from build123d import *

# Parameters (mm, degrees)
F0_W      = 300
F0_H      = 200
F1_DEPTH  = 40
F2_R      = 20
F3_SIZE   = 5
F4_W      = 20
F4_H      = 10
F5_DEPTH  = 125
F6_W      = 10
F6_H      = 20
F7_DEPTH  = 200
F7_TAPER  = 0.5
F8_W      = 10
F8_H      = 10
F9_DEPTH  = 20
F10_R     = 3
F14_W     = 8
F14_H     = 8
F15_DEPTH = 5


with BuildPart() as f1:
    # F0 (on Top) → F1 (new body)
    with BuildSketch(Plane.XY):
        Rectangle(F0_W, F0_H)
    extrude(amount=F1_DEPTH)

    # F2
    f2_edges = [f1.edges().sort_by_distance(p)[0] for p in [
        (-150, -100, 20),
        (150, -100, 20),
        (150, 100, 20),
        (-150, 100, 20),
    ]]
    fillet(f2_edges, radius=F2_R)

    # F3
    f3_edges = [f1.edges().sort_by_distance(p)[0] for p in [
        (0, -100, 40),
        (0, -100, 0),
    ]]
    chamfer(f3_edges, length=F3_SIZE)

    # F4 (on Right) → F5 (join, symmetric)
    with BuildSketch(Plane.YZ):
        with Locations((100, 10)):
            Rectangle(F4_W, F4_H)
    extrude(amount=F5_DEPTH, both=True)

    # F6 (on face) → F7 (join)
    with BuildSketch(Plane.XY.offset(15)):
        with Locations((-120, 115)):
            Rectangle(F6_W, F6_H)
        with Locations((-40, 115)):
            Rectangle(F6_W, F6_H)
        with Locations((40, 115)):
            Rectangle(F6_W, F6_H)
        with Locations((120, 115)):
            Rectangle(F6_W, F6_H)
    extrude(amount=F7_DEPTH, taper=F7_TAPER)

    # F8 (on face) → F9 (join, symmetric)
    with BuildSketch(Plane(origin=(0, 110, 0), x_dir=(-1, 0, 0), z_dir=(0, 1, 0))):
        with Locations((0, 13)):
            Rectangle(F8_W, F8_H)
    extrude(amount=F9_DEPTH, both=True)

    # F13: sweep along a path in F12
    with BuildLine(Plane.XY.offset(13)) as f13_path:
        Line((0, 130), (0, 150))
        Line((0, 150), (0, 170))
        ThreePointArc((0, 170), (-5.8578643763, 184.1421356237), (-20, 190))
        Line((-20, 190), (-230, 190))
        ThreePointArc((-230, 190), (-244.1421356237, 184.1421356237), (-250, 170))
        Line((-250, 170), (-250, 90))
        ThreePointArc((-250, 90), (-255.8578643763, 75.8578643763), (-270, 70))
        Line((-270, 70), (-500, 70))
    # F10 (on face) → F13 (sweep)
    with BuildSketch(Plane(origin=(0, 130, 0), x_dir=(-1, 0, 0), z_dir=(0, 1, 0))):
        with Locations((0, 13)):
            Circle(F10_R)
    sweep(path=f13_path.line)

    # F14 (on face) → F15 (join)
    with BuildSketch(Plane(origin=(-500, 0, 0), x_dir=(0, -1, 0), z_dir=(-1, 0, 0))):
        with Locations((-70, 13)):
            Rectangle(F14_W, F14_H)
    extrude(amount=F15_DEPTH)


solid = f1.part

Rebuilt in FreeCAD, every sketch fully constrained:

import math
import FreeCAD as App
import Part
import Sketcher

V = App.Vector
Q = App.Units.Quantity


def edges_at(feature, points):
    """Names of the edges that pass closest to the given points."""
    edges = feature.Shape.Edges
    near = lambda p: min(range(len(edges)), key=lambda i: edges[i].distToShape(Part.Vertex(*p))[0])
    return sorted({f"Edge{near(p) + 1}" for p in points})

doc = App.newDocument("Part")
body = doc.addObject("PartDesign::Body", "Body")

sketch1 = doc.addObject("Sketcher::SketchObject", "Sketch")
body.addObject(sketch1)
sketch1.AttachmentSupport = (doc.XY_Plane, [""])
sketch1.MapMode = "FlatFace"
sketch1.addGeometry(Part.LineSegment(V(-150, 100, 0), V(-150, -100, 0)), False)
sketch1.addGeometry(Part.LineSegment(V(-150, -100, 0), V(150, -100, 0)), False)
sketch1.addGeometry(Part.LineSegment(V(150, -100, 0), V(150, 100, 0)), False)
sketch1.addGeometry(Part.LineSegment(V(150, 100, 0), V(-150, 100, 0)), False)
sketch1.addConstraint(Sketcher.Constraint("Coincident", 0, 2, 1, 1))
sketch1.addConstraint(Sketcher.Constraint("Coincident", 1, 2, 2, 1))
sketch1.addConstraint(Sketcher.Constraint("Coincident", 2, 2, 3, 1))
sketch1.addConstraint(Sketcher.Constraint("Coincident", 3, 2, 0, 1))
sketch1.addConstraint(Sketcher.Constraint("Vertical", 0))
sketch1.addConstraint(Sketcher.Constraint("Horizontal", 1))
sketch1.addConstraint(Sketcher.Constraint("Vertical", 2))
sketch1.addConstraint(Sketcher.Constraint("Horizontal", 3))
sketch1.addConstraint(Sketcher.Constraint("Symmetric", 0, 2, 2, 2, -1, 1))
sketch1.addConstraint(Sketcher.Constraint("DistanceX", 1, 1, 1, 2, Q("300 mm")))
sketch1.addConstraint(Sketcher.Constraint("DistanceY", 0, 2, 0, 1, Q("200 mm")))
pad1 = doc.addObject("PartDesign::Pad", "Pad")
body.addObject(pad1)
pad1.Profile = sketch1
pad1.Length = 40
doc.recompute()

fillet = doc.addObject("PartDesign::Fillet", "Fillet")
body.addObject(fillet)
fillet.Base = (pad1, edges_at(pad1, [
    (-150, -100, 20),
    (150, -100, 20),
    (150, 100, 20),
    (-150, 100, 20),
]))
fillet.Radius = 20
doc.recompute()

chamfer = doc.addObject("PartDesign::Chamfer", "Chamfer")
body.addObject(chamfer)
chamfer.Base = (fillet, edges_at(fillet, [(0, -100, 40), (0, -100, 0)]))
chamfer.Size = 5

sketch2 = doc.addObject("Sketcher::SketchObject", "Sketch001")
body.addObject(sketch2)
sketch2.AttachmentSupport = (doc.YZ_Plane, [""])
sketch2.MapMode = "FlatFace"
sketch2.addGeometry(Part.LineSegment(V(90, 15, 0), V(90, 5, 0)), False)
sketch2.addGeometry(Part.LineSegment(V(90, 5, 0), V(110, 5, 0)), False)
sketch2.addGeometry(Part.LineSegment(V(110, 5, 0), V(110, 15, 0)), False)
sketch2.addGeometry(Part.LineSegment(V(110, 15, 0), V(90, 15, 0)), False)
sketch2.addConstraint(Sketcher.Constraint("Coincident", 0, 2, 1, 1))
sketch2.addConstraint(Sketcher.Constraint("Coincident", 1, 2, 2, 1))
sketch2.addConstraint(Sketcher.Constraint("Coincident", 2, 2, 3, 1))
sketch2.addConstraint(Sketcher.Constraint("Coincident", 3, 2, 0, 1))
sketch2.addConstraint(Sketcher.Constraint("Vertical", 0))
sketch2.addConstraint(Sketcher.Constraint("Horizontal", 1))
sketch2.addConstraint(Sketcher.Constraint("Vertical", 2))
sketch2.addConstraint(Sketcher.Constraint("Horizontal", 3))
sketch2.addConstraint(Sketcher.Constraint("DistanceX", 1, 1, 1, 2, Q("20 mm")))
sketch2.addConstraint(Sketcher.Constraint("DistanceY", 0, 2, 0, 1, Q("10 mm")))
sketch2.addConstraint(Sketcher.Constraint("DistanceX", -1, 1, 0, 2, Q("90 mm")))
sketch2.addConstraint(Sketcher.Constraint("DistanceY", -1, 1, 0, 2, Q("5 mm")))
pad2 = doc.addObject("PartDesign::Pad", "Pad001")
body.addObject(pad2)
pad2.Profile = sketch2
pad2.Length = 250
pad2.Midplane = True

sketch3 = doc.addObject("Sketcher::SketchObject", "Sketch002")
body.addObject(sketch3)
sketch3.AttachmentSupport = (doc.XY_Plane, [""])
sketch3.MapMode = "FlatFace"
sketch3.AttachmentOffset = App.Placement(V(0, 0, 15), App.Rotation())
sketch3.addGeometry(Part.LineSegment(V(-125, 125, 0), V(-125, 105, 0)), False)
sketch3.addGeometry(Part.LineSegment(V(-125, 105, 0), V(-115, 105, 0)), False)
sketch3.addGeometry(Part.LineSegment(V(-115, 105, 0), V(-115, 125, 0)), False)
sketch3.addGeometry(Part.LineSegment(V(-115, 125, 0), V(-125, 125, 0)), False)
sketch3.addGeometry(Part.LineSegment(V(-45, 125, 0), V(-45, 105, 0)), False)
sketch3.addGeometry(Part.LineSegment(V(-45, 105, 0), V(-35, 105, 0)), False)
sketch3.addGeometry(Part.LineSegment(V(-35, 105, 0), V(-35, 125, 0)), False)
sketch3.addGeometry(Part.LineSegment(V(-35, 125, 0), V(-45, 125, 0)), False)
sketch3.addGeometry(Part.LineSegment(V(35, 125, 0), V(35, 105, 0)), False)
sketch3.addGeometry(Part.LineSegment(V(35, 105, 0), V(45, 105, 0)), False)
sketch3.addGeometry(Part.LineSegment(V(45, 105, 0), V(45, 125, 0)), False)
sketch3.addGeometry(Part.LineSegment(V(45, 125, 0), V(35, 125, 0)), False)
sketch3.addGeometry(Part.LineSegment(V(115, 125, 0), V(115, 105, 0)), False)
sketch3.addGeometry(Part.LineSegment(V(115, 105, 0), V(125, 105, 0)), False)
sketch3.addGeometry(Part.LineSegment(V(125, 105, 0), V(125, 125, 0)), False)
sketch3.addGeometry(Part.LineSegment(V(125, 125, 0), V(115, 125, 0)), False)
sketch3.addConstraint(Sketcher.Constraint("Coincident", 0, 2, 1, 1))
sketch3.addConstraint(Sketcher.Constraint("Coincident", 1, 2, 2, 1))
sketch3.addConstraint(Sketcher.Constraint("Coincident", 2, 2, 3, 1))
sketch3.addConstraint(Sketcher.Constraint("Coincident", 3, 2, 0, 1))
sketch3.addConstraint(Sketcher.Constraint("Coincident", 4, 2, 5, 1))
sketch3.addConstraint(Sketcher.Constraint("Coincident", 5, 2, 6, 1))
sketch3.addConstraint(Sketcher.Constraint("Coincident", 6, 2, 7, 1))
sketch3.addConstraint(Sketcher.Constraint("Coincident", 7, 2, 4, 1))
sketch3.addConstraint(Sketcher.Constraint("Coincident", 8, 2, 9, 1))
sketch3.addConstraint(Sketcher.Constraint("Coincident", 9, 2, 10, 1))
sketch3.addConstraint(Sketcher.Constraint("Coincident", 10, 2, 11, 1))
sketch3.addConstraint(Sketcher.Constraint("Coincident", 11, 2, 8, 1))
sketch3.addConstraint(Sketcher.Constraint("Coincident", 12, 2, 13, 1))
sketch3.addConstraint(Sketcher.Constraint("Coincident", 13, 2, 14, 1))
sketch3.addConstraint(Sketcher.Constraint("Coincident", 14, 2, 15, 1))
sketch3.addConstraint(Sketcher.Constraint("Coincident", 15, 2, 12, 1))
sketch3.addConstraint(Sketcher.Constraint("Vertical", 0))
sketch3.addConstraint(Sketcher.Constraint("Horizontal", 1))
sketch3.addConstraint(Sketcher.Constraint("Vertical", 2))
sketch3.addConstraint(Sketcher.Constraint("Horizontal", 3))
sketch3.addConstraint(Sketcher.Constraint("Vertical", 4))
sketch3.addConstraint(Sketcher.Constraint("Horizontal", 5))
sketch3.addConstraint(Sketcher.Constraint("Vertical", 6))
sketch3.addConstraint(Sketcher.Constraint("Horizontal", 7))
sketch3.addConstraint(Sketcher.Constraint("Vertical", 8))
sketch3.addConstraint(Sketcher.Constraint("Horizontal", 9))
sketch3.addConstraint(Sketcher.Constraint("Vertical", 10))
sketch3.addConstraint(Sketcher.Constraint("Horizontal", 11))
sketch3.addConstraint(Sketcher.Constraint("Vertical", 12))
sketch3.addConstraint(Sketcher.Constraint("Horizontal", 13))
sketch3.addConstraint(Sketcher.Constraint("Vertical", 14))
sketch3.addConstraint(Sketcher.Constraint("Horizontal", 15))
sketch3.addConstraint(Sketcher.Constraint("Symmetric", 5, 2, 8, 2, -2))
sketch3.addConstraint(Sketcher.Constraint("Symmetric", 7, 2, 10, 2, -2))
sketch3.addConstraint(Sketcher.Constraint("Symmetric", 1, 2, 12, 2, -2))
sketch3.addConstraint(Sketcher.Constraint("Symmetric", 3, 2, 14, 2, -2))
sketch3.addConstraint(Sketcher.Constraint("Horizontal", 1, 2, 4, 2))
sketch3.addConstraint(Sketcher.Constraint("Horizontal", 3, 2, 6, 2))
sketch3.addConstraint(Sketcher.Constraint("Equal", 3, 5))
sketch3.addConstraint(Sketcher.Constraint("DistanceX", 1, 1, 1, 2, Q("10 mm")))
sketch3.addConstraint(Sketcher.Constraint("DistanceY", 0, 2, 0, 1, Q("20 mm")))
sketch3.addConstraint(Sketcher.Constraint("DistanceX", 0, 2, -1, 1, Q("125 mm")))
sketch3.addConstraint(Sketcher.Constraint("DistanceY", -1, 1, 0, 2, Q("105 mm")))
sketch3.addConstraint(Sketcher.Constraint("DistanceX", 4, 2, -1, 1, Q("45 mm")))
pad3 = doc.addObject("PartDesign::Pad", "Pad002")
body.addObject(pad3)
pad3.Profile = sketch3
pad3.Length = 200
pad3.TaperAngle = -0.5

sketch4 = doc.addObject("Sketcher::SketchObject", "Sketch003")
body.addObject(sketch4)
sketch4.AttachmentSupport = (doc.XZ_Plane, [""])
sketch4.MapMode = "FlatFace"
sketch4.AttachmentOffset = App.Placement(V(0, 0, -110), App.Rotation())
sketch4.addGeometry(Part.LineSegment(V(5, 18, 0), V(5, 8, 0)), False)
sketch4.addGeometry(Part.LineSegment(V(5, 8, 0), V(-5, 8, 0)), False)
sketch4.addGeometry(Part.LineSegment(V(-5, 8, 0), V(-5, 18, 0)), False)
sketch4.addGeometry(Part.LineSegment(V(-5, 18, 0), V(5, 18, 0)), False)
sketch4.addConstraint(Sketcher.Constraint("Coincident", 0, 2, 1, 1))
sketch4.addConstraint(Sketcher.Constraint("Coincident", 1, 2, 2, 1))
sketch4.addConstraint(Sketcher.Constraint("Coincident", 2, 2, 3, 1))
sketch4.addConstraint(Sketcher.Constraint("Coincident", 3, 2, 0, 1))
sketch4.addConstraint(Sketcher.Constraint("Vertical", 0))
sketch4.addConstraint(Sketcher.Constraint("Horizontal", 1))
sketch4.addConstraint(Sketcher.Constraint("Vertical", 2))
sketch4.addConstraint(Sketcher.Constraint("Horizontal", 3))
sketch4.addConstraint(Sketcher.Constraint("Equal", 3, 0))
sketch4.addConstraint(Sketcher.Constraint("DistanceX", 1, 2, 1, 1, Q("10 mm")))
sketch4.addConstraint(Sketcher.Constraint("DistanceX", -1, 1, 0, 2, Q("5 mm")))
sketch4.addConstraint(Sketcher.Constraint("DistanceY", -1, 1, 0, 2, Q("8 mm")))
pad4 = doc.addObject("PartDesign::Pad", "Pad003")
body.addObject(pad4)
pad4.Profile = sketch4
pad4.Length = 40
pad4.Midplane = True

sketch5 = doc.addObject("Sketcher::SketchObject", "Sketch004")
body.addObject(sketch5)
sketch5.AttachmentSupport = (doc.XZ_Plane, [""])
sketch5.MapMode = "FlatFace"
sketch5.AttachmentOffset = App.Placement(V(0, 0, -130), App.Rotation())
sketch5.addGeometry(Part.Circle(V(0, 13, 0), V(0, 0, 1), 3), False)
sketch5.addConstraint(Sketcher.Constraint("PointOnObject", 0, 3, -2))
sketch5.addConstraint(Sketcher.Constraint("Diameter", 0, Q("6 mm")))
sketch5.addConstraint(Sketcher.Constraint("DistanceY", -1, 1, 0, 3, Q("13 mm")))

sketch6 = doc.addObject("Sketcher::SketchObject", "Sketch005")
body.addObject(sketch6)
sketch6.AttachmentSupport = (doc.XY_Plane, [""])
sketch6.MapMode = "FlatFace"
sketch6.AttachmentOffset = App.Placement(V(0, 0, 13), App.Rotation())
sketch6.addGeometry(Part.LineSegment(V(0, 130, 0), V(0, 170, 0)), False)
sketch6.addGeometry(Part.ArcOfCircle(Part.Circle(V(-20, 170, 0), V(0, 0, 1), 20), math.radians(0), math.radians(90)), False)
sketch6.addGeometry(Part.LineSegment(V(-20, 190, 0), V(-230, 190, 0)), False)
sketch6.addGeometry(Part.ArcOfCircle(Part.Circle(V(-230, 170, 0), V(0, 0, 1), 20), math.radians(90), math.radians(180)), False)
sketch6.addGeometry(Part.LineSegment(V(-250, 170, 0), V(-250, 90, 0)), False)
sketch6.addGeometry(Part.ArcOfCircle(Part.Circle(V(-270, 90, 0), V(0, 0, 1), 20), math.radians(-90), math.radians(0)), False)
sketch6.addGeometry(Part.LineSegment(V(-270, 70, 0), V(-500, 70, 0)), False)
sketch6.addConstraint(Sketcher.Constraint("Tangent", 0, 2, 1, 1))
sketch6.addConstraint(Sketcher.Constraint("Tangent", 1, 2, 2, 1))
sketch6.addConstraint(Sketcher.Constraint("Tangent", 2, 2, 3, 1))
sketch6.addConstraint(Sketcher.Constraint("Tangent", 3, 2, 4, 1))
sketch6.addConstraint(Sketcher.Constraint("Tangent", 4, 2, 5, 2))
sketch6.addConstraint(Sketcher.Constraint("Tangent", 5, 1, 6, 1))
sketch6.addConstraint(Sketcher.Constraint("Vertical", 0))
sketch6.addConstraint(Sketcher.Constraint("Horizontal", 2))
sketch6.addConstraint(Sketcher.Constraint("Vertical", 4))
sketch6.addConstraint(Sketcher.Constraint("Horizontal", 6))
sketch6.addConstraint(Sketcher.Constraint("Equal", 1, 3))
sketch6.addConstraint(Sketcher.Constraint("Equal", 3, 5))
sketch6.addConstraint(Sketcher.Constraint("PointOnObject", 0, 1, -2))
sketch6.addConstraint(Sketcher.Constraint("Radius", 1, Q("20 mm")))
sketch6.addConstraint(Sketcher.Constraint("DistanceX", 2, 2, 2, 1, Q("210 mm")))
sketch6.addConstraint(Sketcher.Constraint("DistanceX", 6, 2, 6, 1, Q("230 mm")))
sketch6.addConstraint(Sketcher.Constraint("DistanceY", 0, 1, 0, 2, Q("40 mm")))
sketch6.addConstraint(Sketcher.Constraint("DistanceY", 4, 2, 4, 1, Q("80 mm")))
sketch6.addConstraint(Sketcher.Constraint("DistanceY", -1, 1, 1, 3, Q("170 mm")))
doc.recompute()

additivepipe = doc.addObject("PartDesign::AdditivePipe", "AdditivePipe")
body.addObject(additivepipe)
additivepipe.Profile = sketch5
additivepipe.Spine = (sketch6, ["Edge1", "Edge2", "Edge3", "Edge4", "Edge5", "Edge6", "Edge7"])

sketch7 = doc.addObject("Sketcher::SketchObject", "Sketch006")
body.addObject(sketch7)
sketch7.AttachmentSupport = (doc.YZ_Plane, [""])
sketch7.MapMode = "FlatFace"
sketch7.AttachmentOffset = App.Placement(V(0, 0, -500), App.Rotation())
sketch7.addGeometry(Part.LineSegment(V(74, 17, 0), V(74, 9, 0)), False)
sketch7.addGeometry(Part.LineSegment(V(74, 9, 0), V(66, 9, 0)), False)
sketch7.addGeometry(Part.LineSegment(V(66, 9, 0), V(66, 17, 0)), False)
sketch7.addGeometry(Part.LineSegment(V(66, 17, 0), V(74, 17, 0)), False)
sketch7.addConstraint(Sketcher.Constraint("Coincident", 0, 2, 1, 1))
sketch7.addConstraint(Sketcher.Constraint("Coincident", 1, 2, 2, 1))
sketch7.addConstraint(Sketcher.Constraint("Coincident", 2, 2, 3, 1))
sketch7.addConstraint(Sketcher.Constraint("Coincident", 3, 2, 0, 1))
sketch7.addConstraint(Sketcher.Constraint("Vertical", 0))
sketch7.addConstraint(Sketcher.Constraint("Horizontal", 1))
sketch7.addConstraint(Sketcher.Constraint("Vertical", 2))
sketch7.addConstraint(Sketcher.Constraint("Horizontal", 3))
sketch7.addConstraint(Sketcher.Constraint("Equal", 3, 0))
sketch7.addConstraint(Sketcher.Constraint("DistanceX", 1, 2, 1, 1, Q("8 mm")))
sketch7.addConstraint(Sketcher.Constraint("DistanceX", -1, 1, 0, 2, Q("74 mm")))
sketch7.addConstraint(Sketcher.Constraint("DistanceY", -1, 1, 0, 2, Q("9 mm")))
pad5 = doc.addObject("PartDesign::Pad", "Pad004")
body.addObject(pad5)
pad5.Profile = sketch7
pad5.Length = 5
pad5.Reversed = True

doc.recompute()
